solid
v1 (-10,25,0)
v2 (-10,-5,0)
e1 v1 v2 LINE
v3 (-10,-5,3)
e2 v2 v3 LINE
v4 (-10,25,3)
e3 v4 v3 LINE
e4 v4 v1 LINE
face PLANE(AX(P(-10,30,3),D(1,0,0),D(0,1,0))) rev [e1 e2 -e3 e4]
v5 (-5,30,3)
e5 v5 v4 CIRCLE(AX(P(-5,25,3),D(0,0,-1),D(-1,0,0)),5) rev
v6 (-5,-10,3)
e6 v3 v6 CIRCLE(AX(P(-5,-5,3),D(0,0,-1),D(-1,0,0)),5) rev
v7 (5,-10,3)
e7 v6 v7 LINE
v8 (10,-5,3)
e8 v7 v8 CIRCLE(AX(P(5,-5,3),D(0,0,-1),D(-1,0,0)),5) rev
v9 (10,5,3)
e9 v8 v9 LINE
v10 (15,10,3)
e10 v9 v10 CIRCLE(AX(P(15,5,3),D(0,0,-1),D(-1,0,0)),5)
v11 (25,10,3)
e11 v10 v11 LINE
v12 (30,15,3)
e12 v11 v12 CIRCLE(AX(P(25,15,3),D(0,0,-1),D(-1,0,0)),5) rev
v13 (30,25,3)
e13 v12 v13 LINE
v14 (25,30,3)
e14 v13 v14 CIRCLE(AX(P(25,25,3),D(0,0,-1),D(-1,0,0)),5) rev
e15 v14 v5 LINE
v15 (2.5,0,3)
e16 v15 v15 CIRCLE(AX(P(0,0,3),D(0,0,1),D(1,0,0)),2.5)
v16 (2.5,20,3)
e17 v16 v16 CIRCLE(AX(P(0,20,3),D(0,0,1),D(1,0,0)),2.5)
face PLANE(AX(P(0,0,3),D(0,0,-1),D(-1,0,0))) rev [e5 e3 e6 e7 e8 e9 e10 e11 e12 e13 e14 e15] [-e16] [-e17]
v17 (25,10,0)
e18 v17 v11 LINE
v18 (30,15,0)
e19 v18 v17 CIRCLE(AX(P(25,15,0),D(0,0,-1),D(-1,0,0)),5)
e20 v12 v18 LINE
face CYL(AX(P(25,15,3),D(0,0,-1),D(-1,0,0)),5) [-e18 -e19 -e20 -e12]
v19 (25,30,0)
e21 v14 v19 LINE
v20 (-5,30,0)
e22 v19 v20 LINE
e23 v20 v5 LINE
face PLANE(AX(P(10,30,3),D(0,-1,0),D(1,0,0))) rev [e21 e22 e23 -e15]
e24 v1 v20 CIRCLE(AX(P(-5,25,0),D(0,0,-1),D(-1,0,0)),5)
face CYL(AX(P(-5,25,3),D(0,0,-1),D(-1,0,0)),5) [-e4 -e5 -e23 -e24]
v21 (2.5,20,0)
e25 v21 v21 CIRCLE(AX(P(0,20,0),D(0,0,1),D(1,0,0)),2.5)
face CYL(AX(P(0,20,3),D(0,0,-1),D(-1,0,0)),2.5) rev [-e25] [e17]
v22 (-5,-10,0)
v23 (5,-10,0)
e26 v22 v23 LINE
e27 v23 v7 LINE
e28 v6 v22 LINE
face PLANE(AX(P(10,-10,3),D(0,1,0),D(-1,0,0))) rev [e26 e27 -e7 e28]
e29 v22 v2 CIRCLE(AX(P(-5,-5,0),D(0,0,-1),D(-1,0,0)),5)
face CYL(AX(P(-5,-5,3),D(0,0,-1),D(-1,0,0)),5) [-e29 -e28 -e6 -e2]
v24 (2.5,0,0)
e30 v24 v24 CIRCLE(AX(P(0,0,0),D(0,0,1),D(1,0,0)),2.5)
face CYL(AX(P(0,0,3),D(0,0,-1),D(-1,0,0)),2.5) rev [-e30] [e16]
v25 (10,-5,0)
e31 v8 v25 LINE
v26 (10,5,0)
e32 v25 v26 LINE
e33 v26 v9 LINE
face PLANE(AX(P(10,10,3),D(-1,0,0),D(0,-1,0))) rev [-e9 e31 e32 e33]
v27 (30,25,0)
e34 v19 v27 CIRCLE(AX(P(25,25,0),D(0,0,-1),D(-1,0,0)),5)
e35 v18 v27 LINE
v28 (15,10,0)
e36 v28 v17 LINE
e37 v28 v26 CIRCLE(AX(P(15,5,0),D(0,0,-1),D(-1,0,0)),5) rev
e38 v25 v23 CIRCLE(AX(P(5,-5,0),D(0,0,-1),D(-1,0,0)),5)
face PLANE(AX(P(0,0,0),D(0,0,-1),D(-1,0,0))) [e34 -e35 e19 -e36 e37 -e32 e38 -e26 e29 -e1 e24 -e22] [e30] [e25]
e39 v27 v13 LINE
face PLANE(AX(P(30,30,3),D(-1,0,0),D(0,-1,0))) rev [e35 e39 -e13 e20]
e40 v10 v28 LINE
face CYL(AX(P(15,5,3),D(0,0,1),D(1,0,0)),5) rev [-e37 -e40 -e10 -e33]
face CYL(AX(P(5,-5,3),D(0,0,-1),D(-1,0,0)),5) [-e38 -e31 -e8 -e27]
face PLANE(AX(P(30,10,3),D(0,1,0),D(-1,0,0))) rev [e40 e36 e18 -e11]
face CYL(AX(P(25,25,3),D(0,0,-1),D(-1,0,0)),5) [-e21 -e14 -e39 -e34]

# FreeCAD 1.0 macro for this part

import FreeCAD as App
import Part
import Sketcher
Q = App.Units.Quantity


def edges_at(feature, points):
    """Names of the edges that pass closest to the given points."""
    edges = feature.Shape.Edges
    near = lambda p: min(range(len(edges)), key=lambda i: edges[i].distToShape(Part.Vertex(*p))[0])
    return sorted({f"Edge{near(p) + 1}" for p in points})

doc = App.newDocument("Part")
body = doc.addObject("PartDesign::Body", "Body")

# Sketch on XY plane
sketch1 = body.newObject("Sketcher::SketchObject", "Sketch")
sketch1.AttachmentSupport = (doc.getObject("XY_Plane"), [""])
sketch1.MapMode = "FlatFace"
sketch1.addGeometry([
    Part.LineSegment(App.Vector(30, 30, 0), App.Vector(-10, 30, 0)),  # 0
    Part.LineSegment(App.Vector(-10, 30, 0), App.Vector(-10, -10, 0)),  # 1
    Part.LineSegment(App.Vector(-10, -10, 0), App.Vector(10, -10, 0)),  # 2
    Part.LineSegment(App.Vector(10, -10, 0), App.Vector(10, 10, 0)),  # 3
    Part.LineSegment(App.Vector(10, 10, 0), App.Vector(30, 10, 0)),  # 4
    Part.LineSegment(App.Vector(30, 10, 0), App.Vector(30, 30, 0)),  # 5
    Part.Circle(App.Vector(0, 0, 0), App.Vector(0, 0, 1), 2.5),  # 6
    Part.Circle(App.Vector(0, 20, 0), App.Vector(0, 0, 1), 2.5),  # 7
], False)
sketch1.addConstraint([
    Sketcher.Constraint("Coincident", 0, 2, 1, 1),
    Sketcher.Constraint("Coincident", 1, 2, 2, 1),
    Sketcher.Constraint("Coincident", 2, 2, 3, 1),
    Sketcher.Constraint("Coincident", 3, 2, 4, 1),
    Sketcher.Constraint("Coincident", 4, 2, 5, 1),
    Sketcher.Constraint("Coincident", 5, 2, 0, 1),
    Sketcher.Constraint("Horizontal", 0),
    Sketcher.Constraint("Vertical", 1),
    Sketcher.Constraint("Horizontal", 2),
    Sketcher.Constraint("Vertical", 3),
    Sketcher.Constraint("Horizontal", 4),
    Sketcher.Constraint("Vertical", 5),
    Sketcher.Constraint("Coincident", 6, 3, -1, 1),
    Sketcher.Constraint("Equal", 6, 7),
    Sketcher.Constraint("Symmetric", 1, 2, 3, 2, -1, 1),
    Sketcher.Constraint("PointOnObject", 7, 3, -2),
    Sketcher.Constraint("Equal", 2, 4),
    Sketcher.Constraint("Equal", 0, 1),
    Sketcher.Constraint("Equal", 4, 3),
    Sketcher.Constraint("Diameter", 6, Q("5 mm")),
    Sketcher.Constraint("DistanceX", 0, 2, 0, 1, Q("40 mm")),
    Sketcher.Constraint("DistanceY", -1, 1, 7, 3, Q("20 mm")),
])
pad1 = body.newObject("PartDesign::Pad", "Pad")
pad1.Profile = sketch1
pad1.Length = 3
doc.recompute()

fillet = body.newObject("PartDesign::Fillet", "Fillet")
fillet.Base = (pad1, edges_at(pad1, [
    (-10, 30, 1.5),
    (30, 30, 1.5),
    (30, 10, 1.5),
    (10, 10, 1.5),
    (10, -10, 1.5),
    (-10, -10, 1.5),
]))
fillet.Radius = 5

doc.recompute()
